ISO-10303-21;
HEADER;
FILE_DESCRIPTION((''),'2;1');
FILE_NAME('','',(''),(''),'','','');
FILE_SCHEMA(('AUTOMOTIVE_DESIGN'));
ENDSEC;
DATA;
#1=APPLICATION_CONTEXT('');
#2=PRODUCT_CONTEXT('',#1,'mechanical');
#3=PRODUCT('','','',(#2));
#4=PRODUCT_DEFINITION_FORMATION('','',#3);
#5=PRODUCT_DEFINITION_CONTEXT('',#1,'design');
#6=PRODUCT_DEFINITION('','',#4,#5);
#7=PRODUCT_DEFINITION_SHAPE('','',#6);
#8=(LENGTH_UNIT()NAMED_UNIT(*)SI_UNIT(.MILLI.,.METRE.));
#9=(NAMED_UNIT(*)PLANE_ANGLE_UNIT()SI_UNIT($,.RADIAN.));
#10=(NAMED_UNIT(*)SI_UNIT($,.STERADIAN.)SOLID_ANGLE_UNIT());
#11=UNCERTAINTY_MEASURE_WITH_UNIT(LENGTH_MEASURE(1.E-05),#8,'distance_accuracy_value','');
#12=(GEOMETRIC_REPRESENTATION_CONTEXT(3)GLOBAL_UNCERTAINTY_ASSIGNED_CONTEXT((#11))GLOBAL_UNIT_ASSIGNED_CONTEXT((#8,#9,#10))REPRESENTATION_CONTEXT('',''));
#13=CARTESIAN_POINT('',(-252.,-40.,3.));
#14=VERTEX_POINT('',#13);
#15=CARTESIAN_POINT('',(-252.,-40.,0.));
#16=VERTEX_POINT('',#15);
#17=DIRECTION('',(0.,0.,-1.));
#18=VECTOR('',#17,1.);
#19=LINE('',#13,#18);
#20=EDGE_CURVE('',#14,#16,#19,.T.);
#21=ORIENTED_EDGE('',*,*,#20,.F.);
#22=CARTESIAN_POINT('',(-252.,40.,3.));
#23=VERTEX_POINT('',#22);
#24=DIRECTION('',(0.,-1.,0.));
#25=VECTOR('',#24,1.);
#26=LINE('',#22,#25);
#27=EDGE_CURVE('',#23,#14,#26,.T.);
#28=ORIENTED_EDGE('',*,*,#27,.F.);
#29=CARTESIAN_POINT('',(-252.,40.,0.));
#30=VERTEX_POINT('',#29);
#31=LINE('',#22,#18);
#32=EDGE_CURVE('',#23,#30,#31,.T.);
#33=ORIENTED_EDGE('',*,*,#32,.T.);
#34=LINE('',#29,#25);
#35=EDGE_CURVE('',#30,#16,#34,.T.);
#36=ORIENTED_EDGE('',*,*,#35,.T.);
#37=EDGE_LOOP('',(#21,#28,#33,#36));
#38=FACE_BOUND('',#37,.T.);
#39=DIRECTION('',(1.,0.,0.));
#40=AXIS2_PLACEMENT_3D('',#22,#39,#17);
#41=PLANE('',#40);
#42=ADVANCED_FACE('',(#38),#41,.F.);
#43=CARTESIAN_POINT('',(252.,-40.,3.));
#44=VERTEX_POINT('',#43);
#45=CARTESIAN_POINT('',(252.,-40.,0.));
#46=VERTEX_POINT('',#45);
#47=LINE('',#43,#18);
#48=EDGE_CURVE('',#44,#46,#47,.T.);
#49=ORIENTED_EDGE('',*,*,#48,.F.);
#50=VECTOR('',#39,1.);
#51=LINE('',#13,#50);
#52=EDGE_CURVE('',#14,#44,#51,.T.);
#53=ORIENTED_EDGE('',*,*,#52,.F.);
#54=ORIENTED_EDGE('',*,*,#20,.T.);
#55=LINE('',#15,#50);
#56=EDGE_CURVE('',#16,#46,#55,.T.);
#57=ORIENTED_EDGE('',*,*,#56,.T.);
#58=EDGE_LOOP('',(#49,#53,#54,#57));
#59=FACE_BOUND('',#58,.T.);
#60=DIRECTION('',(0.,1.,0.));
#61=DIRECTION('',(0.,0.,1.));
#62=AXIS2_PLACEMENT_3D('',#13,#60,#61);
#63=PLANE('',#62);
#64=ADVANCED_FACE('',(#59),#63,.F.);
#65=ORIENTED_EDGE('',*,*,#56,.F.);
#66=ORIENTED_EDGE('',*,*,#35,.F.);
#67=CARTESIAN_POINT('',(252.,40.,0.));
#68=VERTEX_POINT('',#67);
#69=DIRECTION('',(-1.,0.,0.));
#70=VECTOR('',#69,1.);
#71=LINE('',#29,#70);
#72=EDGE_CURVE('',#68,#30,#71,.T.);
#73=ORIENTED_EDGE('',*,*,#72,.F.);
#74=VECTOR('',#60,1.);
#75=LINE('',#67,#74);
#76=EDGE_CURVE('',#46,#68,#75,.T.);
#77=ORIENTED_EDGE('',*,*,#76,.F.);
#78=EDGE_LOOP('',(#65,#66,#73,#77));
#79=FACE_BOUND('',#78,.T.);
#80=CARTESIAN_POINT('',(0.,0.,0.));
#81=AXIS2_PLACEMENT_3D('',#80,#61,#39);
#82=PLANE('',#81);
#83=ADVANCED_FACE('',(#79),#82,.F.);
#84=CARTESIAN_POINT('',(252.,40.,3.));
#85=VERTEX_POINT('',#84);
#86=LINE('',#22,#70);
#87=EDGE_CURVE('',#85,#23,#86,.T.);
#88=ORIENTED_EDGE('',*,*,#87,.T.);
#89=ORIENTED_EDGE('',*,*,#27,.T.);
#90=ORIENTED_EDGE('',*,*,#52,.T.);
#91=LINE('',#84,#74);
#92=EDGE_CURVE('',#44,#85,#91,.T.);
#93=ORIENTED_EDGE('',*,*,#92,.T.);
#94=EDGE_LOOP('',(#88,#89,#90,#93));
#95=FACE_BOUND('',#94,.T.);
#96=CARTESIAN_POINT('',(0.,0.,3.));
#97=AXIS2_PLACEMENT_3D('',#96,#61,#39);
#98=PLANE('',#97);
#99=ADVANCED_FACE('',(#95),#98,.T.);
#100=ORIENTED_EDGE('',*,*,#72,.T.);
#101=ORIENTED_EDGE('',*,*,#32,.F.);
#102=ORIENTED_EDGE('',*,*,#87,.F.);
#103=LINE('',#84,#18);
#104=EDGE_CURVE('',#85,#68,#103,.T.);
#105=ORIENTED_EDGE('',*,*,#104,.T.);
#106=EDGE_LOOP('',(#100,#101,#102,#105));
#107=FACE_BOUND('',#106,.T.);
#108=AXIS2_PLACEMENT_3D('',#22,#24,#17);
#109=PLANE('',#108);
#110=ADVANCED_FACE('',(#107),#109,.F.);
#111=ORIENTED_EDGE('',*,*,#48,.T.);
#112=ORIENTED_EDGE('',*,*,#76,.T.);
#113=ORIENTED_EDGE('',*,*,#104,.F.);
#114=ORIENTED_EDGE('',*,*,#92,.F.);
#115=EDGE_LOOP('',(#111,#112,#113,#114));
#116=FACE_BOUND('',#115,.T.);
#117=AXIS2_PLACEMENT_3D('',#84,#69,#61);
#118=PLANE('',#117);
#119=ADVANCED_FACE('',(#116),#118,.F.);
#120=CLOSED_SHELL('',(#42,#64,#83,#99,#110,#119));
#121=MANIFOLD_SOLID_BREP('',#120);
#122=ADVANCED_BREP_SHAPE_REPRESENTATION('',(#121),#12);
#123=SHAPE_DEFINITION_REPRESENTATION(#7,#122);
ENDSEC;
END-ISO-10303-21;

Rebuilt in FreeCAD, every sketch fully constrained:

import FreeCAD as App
import Part
import Sketcher

V = App.Vector
Q = App.Units.Quantity

doc = App.newDocument("Part")
body = doc.addObject("PartDesign::Body", "Body")

sketch1 = doc.addObject("Sketcher::SketchObject", "Sketch")
body.addObject(sketch1)
sketch1.AttachmentSupport = (doc.XY_Plane, [""])
sketch1.MapMode = "FlatFace"
sketch1.addGeometry([
    Part.LineSegment(V(-252, 40, 0), V(-252, -40, 0)),
    Part.LineSegment(V(-252, -40, 0), V(252, -40, 0)),
    Part.LineSegment(V(252, -40, 0), V(252, 40, 0)),
    Part.LineSegment(V(252, 40, 0), V(-252, 40, 0)),
], False)
sketch1.addConstraint([
    Sketcher.Constraint("Coincident", 0, 2, 1, 1),
    Sketcher.Constraint("Coincident", 1, 2, 2, 1),
    Sketcher.Constraint("Coincident", 2, 2, 3, 1),
    Sketcher.Constraint("Coincident", 3, 2, 0, 1),
    Sketcher.Constraint("Vertical", 0),
    Sketcher.Constraint("Horizontal", 1),
    Sketcher.Constraint("Vertical", 2),
    Sketcher.Constraint("Horizontal", 3),
    Sketcher.Constraint("Symmetric", 0, 2, 2, 2, -1, 1),
    Sketcher.Constraint("DistanceX", 1, 1, 1, 2, Q("504 mm")),
    Sketcher.Constraint("DistanceY", 0, 2, 0, 1, Q("80 mm")),
])
pad1 = doc.addObject("PartDesign::Pad", "Pad")
body.addObject(pad1)
pad1.Profile = sketch1
pad1.Length = 3

doc.recompute()
